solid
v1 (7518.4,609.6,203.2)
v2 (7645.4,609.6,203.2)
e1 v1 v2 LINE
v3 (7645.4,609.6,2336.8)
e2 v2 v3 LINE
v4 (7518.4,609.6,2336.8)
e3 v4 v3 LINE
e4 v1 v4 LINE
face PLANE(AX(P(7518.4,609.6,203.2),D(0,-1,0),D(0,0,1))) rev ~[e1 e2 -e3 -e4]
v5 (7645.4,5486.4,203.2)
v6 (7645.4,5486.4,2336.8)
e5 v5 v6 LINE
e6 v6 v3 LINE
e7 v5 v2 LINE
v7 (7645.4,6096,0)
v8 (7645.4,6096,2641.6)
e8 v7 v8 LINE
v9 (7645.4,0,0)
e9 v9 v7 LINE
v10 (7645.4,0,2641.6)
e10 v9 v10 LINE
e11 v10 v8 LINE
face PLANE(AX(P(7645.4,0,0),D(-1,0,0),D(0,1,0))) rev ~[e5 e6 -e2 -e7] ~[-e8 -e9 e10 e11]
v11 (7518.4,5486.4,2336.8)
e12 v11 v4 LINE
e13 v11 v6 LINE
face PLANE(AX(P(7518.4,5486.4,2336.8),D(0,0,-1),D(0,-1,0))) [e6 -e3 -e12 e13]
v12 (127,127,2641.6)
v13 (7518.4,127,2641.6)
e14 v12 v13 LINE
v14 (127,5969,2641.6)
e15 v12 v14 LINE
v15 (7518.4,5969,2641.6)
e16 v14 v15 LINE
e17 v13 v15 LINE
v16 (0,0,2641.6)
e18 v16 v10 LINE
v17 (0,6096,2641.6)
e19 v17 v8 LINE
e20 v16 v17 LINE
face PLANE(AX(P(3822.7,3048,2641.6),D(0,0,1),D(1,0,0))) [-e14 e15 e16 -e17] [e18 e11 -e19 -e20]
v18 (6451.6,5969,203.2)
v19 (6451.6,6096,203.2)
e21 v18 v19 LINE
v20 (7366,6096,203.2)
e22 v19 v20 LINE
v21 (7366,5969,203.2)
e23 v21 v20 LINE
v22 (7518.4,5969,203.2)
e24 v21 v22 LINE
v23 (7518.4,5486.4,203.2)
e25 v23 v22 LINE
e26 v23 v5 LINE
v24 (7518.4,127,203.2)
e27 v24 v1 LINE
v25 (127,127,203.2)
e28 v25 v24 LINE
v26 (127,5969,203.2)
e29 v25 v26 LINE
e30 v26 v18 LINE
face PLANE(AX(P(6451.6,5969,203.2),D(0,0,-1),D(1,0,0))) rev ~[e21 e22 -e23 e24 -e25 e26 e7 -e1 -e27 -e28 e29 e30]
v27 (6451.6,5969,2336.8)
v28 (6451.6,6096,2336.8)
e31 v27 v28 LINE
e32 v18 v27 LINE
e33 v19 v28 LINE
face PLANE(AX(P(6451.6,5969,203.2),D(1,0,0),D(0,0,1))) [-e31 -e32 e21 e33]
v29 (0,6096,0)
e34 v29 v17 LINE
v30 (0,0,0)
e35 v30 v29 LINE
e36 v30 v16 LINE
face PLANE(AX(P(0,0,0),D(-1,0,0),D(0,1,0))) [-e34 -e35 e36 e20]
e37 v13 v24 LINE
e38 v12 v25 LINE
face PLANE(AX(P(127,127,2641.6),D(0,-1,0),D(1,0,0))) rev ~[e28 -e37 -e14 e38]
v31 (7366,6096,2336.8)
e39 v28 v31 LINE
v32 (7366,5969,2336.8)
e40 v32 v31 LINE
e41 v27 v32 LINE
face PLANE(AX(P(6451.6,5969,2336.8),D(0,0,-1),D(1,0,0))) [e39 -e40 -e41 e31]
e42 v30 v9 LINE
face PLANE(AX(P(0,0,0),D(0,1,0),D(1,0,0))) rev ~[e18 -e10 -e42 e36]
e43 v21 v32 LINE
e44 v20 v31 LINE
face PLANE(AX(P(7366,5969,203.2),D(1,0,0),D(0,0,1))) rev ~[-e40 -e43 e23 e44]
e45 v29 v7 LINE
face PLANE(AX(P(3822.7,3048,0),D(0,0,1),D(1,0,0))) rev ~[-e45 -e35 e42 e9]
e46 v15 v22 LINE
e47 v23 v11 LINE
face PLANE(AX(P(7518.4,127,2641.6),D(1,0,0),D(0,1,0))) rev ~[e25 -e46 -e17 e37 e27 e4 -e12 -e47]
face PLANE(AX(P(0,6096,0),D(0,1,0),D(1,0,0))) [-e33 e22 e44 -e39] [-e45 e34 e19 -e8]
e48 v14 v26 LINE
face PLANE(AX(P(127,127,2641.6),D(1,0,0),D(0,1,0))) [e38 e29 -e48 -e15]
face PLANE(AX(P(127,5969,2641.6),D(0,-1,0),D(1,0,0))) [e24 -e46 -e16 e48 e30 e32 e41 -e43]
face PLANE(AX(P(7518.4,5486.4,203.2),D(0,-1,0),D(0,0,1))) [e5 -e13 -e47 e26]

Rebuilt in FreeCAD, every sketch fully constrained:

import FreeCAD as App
import Part
import Sketcher

V = App.Vector
Q = App.Units.Quantity


def add_polygon(sketch, points):
    """Adds a closed chain of lines whose ends are joined by coincident constraints."""
    first, n = sketch.GeometryCount, len(points)
    for a, b in zip(points, points[1:] + points[:1]):
        sketch.addGeometry(Part.LineSegment(App.Vector(*a, 0), App.Vector(*b, 0)), False)
    for i in range(n):
        sketch.addConstraint(Sketcher.Constraint("Coincident", first + i, 2, first + (i + 1) % n, 1))

doc = App.newDocument("Part")
body = doc.addObject("PartDesign::Body", "Body")

sketch1 = doc.addObject("Sketcher::SketchObject", "Sketch")
body.addObject(sketch1)
sketch1.AttachmentSupport = (doc.XY_Plane, [""])
sketch1.MapMode = "FlatFace"
add_polygon(sketch1, [(0, 6096), (0, 0), (7645, 0), (7645, 6096)])
sketch1.addConstraint(Sketcher.Constraint("Vertical", 0))
sketch1.addConstraint(Sketcher.Constraint("Horizontal", 1))
sketch1.addConstraint(Sketcher.Constraint("Vertical", 2))
sketch1.addConstraint(Sketcher.Constraint("Horizontal", 3))
sketch1.addConstraint(Sketcher.Constraint("Coincident", 0, 2, -1, 1))
sketch1.addConstraint(Sketcher.Constraint("DistanceX", 1, 1, 1, 2, Q("301 in")))
sketch1.addConstraint(Sketcher.Constraint("DistanceY", 0, 2, 0, 1, Q("240 in")))
pad1 = doc.addObject("PartDesign::Pad", "Pad")
body.addObject(pad1)
pad1.Profile = sketch1
pad1.Length = Q("104 in")

sketch2 = doc.addObject("Sketcher::SketchObject", "Sketch001")
body.addObject(sketch2)
sketch2.AttachmentSupport = (doc.XY_Plane, [""])
sketch2.MapMode = "FlatFace"
sketch2.AttachmentOffset = App.Placement(V(0, 0, 104 * 25.4), App.Rotation())
add_polygon(sketch2, [(127, 5969), (127, 127), (7518, 127), (7518, 5969)])
sketch2.addConstraint(Sketcher.Constraint("Vertical", 0))
sketch2.addConstraint(Sketcher.Constraint("Horizontal", 1))
sketch2.addConstraint(Sketcher.Constraint("Vertical", 2))
sketch2.addConstraint(Sketcher.Constraint("Horizontal", 3))
sketch2.addConstraint(Sketcher.Constraint("DistanceX", 1, 1, 1, 2, Q("291 in")))
sketch2.addConstraint(Sketcher.Constraint("DistanceY", 0, 2, 0, 1, Q("230 in")))
sketch2.addConstraint(Sketcher.Constraint("DistanceX", -1, 1, 0, 2, Q("5 in")))
sketch2.addConstraint(Sketcher.Constraint("DistanceY", -1, 1, 0, 2, Q("5 in")))
pocket1 = doc.addObject("PartDesign::Pocket", "Pocket")
body.addObject(pocket1)
pocket1.Profile = sketch2
pocket1.Length = Q("96 in")

sketch3 = doc.addObject("Sketcher::SketchObject", "Sketch002")
body.addObject(sketch3)
sketch3.AttachmentSupport = (doc.YZ_Plane, [""])
sketch3.MapMode = "FlatFace"
sketch3.AttachmentOffset = App.Placement(V(0, 0, 296 * 25.4), App.Rotation())
add_polygon(sketch3, [(5486, 2337), (5486, 203), (610, 203), (610, 2337)])
sketch3.addConstraint(Sketcher.Constraint("Vertical", 0))
sketch3.addConstraint(Sketcher.Constraint("Horizontal", 1))
sketch3.addConstraint(Sketcher.Constraint("Vertical", 2))
sketch3.addConstraint(Sketcher.Constraint("Horizontal", 3))
sketch3.addConstraint(Sketcher.Constraint("DistanceX", 1, 2, 1, 1, Q("192 in")))
sketch3.addConstraint(Sketcher.Constraint("DistanceY", 0, 2, 0, 1, Q("84 in")))
sketch3.addConstraint(Sketcher.Constraint("DistanceX", -1, 1, 0, 2, Q("216 in")))
sketch3.addConstraint(Sketcher.Constraint("DistanceY", -1, 1, 0, 2, Q("8 in")))
pocket2 = doc.addObject("PartDesign::Pocket", "Pocket001")
body.addObject(pocket2)
pocket2.Profile = sketch3
pocket2.Type = "ThroughAll"
pocket2.Reversed = True

sketch4 = doc.addObject("Sketcher::SketchObject", "Sketch003")
body.addObject(sketch4)
sketch4.AttachmentSupport = (doc.XZ_Plane, [""])
sketch4.MapMode = "FlatFace"
sketch4.AttachmentOffset = App.Placement(V(0, 0, -235 * 25.4), App.Rotation())
add_polygon(sketch4, [(6452, 2337), (6452, 203), (7366, 203), (7366, 2337)])
sketch4.addConstraint(Sketcher.Constraint("Vertical", 0))
sketch4.addConstraint(Sketcher.Constraint("Horizontal", 1))
sketch4.addConstraint(Sketcher.Constraint("Vertical", 2))
sketch4.addConstraint(Sketcher.Constraint("Horizontal", 3))
sketch4.addConstraint(Sketcher.Constraint("DistanceX", 1, 1, 1, 2, Q("36 in")))
sketch4.addConstraint(Sketcher.Constraint("DistanceY", 0, 2, 0, 1, Q("84 in")))
sketch4.addConstraint(Sketcher.Constraint("DistanceX", -1, 1, 0, 2, Q("254 in")))
sketch4.addConstraint(Sketcher.Constraint("DistanceY", -1, 1, 0, 2, Q("8 in")))
pocket3 = doc.addObject("PartDesign::Pocket", "Pocket002")
body.addObject(pocket3)
pocket3.Profile = sketch4
pocket3.Type = "ThroughAll"

doc.recompute()
